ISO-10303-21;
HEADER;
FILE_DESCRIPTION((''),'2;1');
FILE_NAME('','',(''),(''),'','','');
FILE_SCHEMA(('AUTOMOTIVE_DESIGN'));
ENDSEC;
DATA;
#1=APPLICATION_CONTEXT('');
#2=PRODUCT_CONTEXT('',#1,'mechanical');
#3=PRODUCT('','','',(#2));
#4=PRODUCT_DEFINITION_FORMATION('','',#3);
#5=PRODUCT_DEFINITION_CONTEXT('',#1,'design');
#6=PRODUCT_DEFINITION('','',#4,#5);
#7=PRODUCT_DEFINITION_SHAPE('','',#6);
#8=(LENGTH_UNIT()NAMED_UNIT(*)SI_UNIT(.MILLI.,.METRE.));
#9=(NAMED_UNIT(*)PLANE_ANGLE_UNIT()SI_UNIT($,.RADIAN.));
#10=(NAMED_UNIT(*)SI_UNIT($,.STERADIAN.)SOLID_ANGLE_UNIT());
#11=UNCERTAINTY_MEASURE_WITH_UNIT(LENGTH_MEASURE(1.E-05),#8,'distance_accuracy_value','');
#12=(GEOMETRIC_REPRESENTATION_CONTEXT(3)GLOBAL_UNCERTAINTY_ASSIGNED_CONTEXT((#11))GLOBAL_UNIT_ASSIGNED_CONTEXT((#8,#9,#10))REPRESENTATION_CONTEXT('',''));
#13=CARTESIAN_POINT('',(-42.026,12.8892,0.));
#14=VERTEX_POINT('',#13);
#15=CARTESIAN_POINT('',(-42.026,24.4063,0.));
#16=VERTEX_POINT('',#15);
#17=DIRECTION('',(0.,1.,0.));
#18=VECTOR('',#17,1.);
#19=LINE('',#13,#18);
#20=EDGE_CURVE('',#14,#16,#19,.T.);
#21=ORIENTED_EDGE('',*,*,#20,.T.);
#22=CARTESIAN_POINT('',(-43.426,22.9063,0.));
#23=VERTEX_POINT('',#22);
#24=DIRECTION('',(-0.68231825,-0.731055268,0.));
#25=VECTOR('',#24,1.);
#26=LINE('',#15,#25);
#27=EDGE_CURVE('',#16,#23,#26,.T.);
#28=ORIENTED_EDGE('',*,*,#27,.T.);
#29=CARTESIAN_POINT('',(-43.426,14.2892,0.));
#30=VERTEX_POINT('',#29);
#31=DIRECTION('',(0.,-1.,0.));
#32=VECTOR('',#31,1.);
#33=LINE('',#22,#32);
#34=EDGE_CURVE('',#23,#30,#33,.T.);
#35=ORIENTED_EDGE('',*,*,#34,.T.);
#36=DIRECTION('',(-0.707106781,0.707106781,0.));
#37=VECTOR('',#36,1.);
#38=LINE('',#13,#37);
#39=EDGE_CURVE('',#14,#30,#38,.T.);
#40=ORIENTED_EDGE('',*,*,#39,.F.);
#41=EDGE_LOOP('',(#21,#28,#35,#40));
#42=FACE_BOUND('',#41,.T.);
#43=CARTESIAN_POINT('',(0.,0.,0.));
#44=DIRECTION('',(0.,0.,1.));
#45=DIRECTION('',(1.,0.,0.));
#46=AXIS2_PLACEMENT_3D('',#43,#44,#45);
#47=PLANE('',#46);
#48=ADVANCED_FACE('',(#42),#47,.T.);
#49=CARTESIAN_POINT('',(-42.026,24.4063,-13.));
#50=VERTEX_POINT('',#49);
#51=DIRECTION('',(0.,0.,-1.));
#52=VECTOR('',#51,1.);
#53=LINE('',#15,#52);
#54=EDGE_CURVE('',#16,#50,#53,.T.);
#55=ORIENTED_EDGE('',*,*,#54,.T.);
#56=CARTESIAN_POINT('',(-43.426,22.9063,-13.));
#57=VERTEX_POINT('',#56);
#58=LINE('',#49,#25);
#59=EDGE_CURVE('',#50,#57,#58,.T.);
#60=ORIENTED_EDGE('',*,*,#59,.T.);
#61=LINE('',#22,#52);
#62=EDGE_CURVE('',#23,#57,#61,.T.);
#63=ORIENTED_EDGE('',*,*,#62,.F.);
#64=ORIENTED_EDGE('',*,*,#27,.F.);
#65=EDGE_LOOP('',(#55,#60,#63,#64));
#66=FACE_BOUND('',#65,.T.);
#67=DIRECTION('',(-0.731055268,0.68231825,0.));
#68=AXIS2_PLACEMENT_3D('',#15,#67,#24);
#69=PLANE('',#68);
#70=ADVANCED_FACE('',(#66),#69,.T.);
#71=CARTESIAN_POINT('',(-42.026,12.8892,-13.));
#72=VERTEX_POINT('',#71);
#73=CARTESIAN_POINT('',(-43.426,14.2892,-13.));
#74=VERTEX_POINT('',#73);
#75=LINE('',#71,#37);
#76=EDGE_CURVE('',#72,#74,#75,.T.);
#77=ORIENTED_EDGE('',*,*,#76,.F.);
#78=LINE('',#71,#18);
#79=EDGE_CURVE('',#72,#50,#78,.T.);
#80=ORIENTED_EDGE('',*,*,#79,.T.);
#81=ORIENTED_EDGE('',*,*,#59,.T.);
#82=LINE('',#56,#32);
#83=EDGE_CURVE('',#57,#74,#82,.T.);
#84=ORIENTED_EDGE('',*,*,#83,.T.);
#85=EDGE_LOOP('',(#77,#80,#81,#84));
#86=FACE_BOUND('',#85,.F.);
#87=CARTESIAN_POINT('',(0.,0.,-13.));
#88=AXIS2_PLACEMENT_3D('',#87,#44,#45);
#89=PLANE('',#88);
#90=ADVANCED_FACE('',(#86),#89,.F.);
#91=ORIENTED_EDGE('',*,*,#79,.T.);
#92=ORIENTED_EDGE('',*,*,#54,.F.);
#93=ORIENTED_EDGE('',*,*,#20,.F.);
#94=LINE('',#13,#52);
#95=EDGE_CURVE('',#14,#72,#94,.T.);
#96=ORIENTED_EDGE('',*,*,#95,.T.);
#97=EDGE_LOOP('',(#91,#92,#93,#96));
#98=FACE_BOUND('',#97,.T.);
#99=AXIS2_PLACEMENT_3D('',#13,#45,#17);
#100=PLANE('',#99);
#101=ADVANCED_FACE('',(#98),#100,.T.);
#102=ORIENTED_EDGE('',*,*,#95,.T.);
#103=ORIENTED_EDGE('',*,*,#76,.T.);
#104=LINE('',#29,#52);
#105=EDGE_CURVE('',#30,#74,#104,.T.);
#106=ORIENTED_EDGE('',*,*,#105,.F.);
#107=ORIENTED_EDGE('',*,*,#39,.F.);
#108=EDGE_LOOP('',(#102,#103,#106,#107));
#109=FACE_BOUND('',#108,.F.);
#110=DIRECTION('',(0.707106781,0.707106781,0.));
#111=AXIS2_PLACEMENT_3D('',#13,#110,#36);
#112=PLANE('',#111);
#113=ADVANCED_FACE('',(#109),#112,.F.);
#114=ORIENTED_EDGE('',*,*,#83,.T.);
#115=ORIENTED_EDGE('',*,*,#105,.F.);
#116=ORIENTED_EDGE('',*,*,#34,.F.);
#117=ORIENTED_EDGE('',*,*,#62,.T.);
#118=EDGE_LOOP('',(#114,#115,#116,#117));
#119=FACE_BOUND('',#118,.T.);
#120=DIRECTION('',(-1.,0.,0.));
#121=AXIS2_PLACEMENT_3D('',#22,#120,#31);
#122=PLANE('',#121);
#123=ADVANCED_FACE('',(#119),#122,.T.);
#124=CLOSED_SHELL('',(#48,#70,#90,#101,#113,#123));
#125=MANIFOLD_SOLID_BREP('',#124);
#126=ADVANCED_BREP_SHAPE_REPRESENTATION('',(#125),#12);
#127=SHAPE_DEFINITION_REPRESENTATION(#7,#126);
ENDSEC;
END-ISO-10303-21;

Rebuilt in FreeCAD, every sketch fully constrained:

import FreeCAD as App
import Part
import Sketcher
Q = App.Units.Quantity


def add_polygon(sketch, points):
    """Adds a closed chain of lines whose ends are joined by coincident constraints."""
    first, n = sketch.GeometryCount, len(points)
    for a, b in zip(points, points[1:] + points[:1]):
        sketch.addGeometry(Part.LineSegment(App.Vector(*a, 0), App.Vector(*b, 0)), False)
    for i in range(n):
        sketch.addConstraint(Sketcher.Constraint("Coincident", first + i, 2, first + (i + 1) % n, 1))

doc = App.newDocument("Part")
params = doc.addObject("Spreadsheet::Sheet", "Params")
for row, (alias, value) in enumerate([
    ("pad1_length", "13 mm"),
], start=1):
    params.set(f"A{row}", alias)
    params.set(f"B{row}", "=" + value)
    params.setAlias(f"B{row}", alias)

body = doc.addObject("PartDesign::Body", "Body")

sketch1 = body.newObject("Sketcher::SketchObject", "Sketch")
sketch1.AttachmentSupport = (doc.getObject("XY_Plane"), [""])
sketch1.MapMode = "FlatFace"
add_polygon(sketch1, [(-43.4, 14.3), (-42, 12.9), (-42, 24.4), (-43.4, 22.9)])
sketch1.addConstraint([
    Sketcher.Constraint("Vertical", 1),
    Sketcher.Constraint("Vertical", 3),
    Sketcher.Constraint("Angle", 0, Q("-45 deg")),
    Sketcher.Constraint("DistanceX", 2, 2, 1, 2, 1.4),
    Sketcher.Constraint("DistanceY", 2, 2, 1, 2, 1.5),
    Sketcher.Constraint("DistanceY", 1, 1, 1, 2, 11.517),
    Sketcher.Constraint("DistanceX", 0, 2, -1, 1, 42.026),
    Sketcher.Constraint("DistanceY", -1, 1, 0, 2, 12.8892),
])
pad1 = body.newObject("PartDesign::Pad", "Pad")
pad1.Profile = sketch1
pad1.setExpression("Length", "Params.pad1_length")
pad1.Reversed = True

doc.recompute()
